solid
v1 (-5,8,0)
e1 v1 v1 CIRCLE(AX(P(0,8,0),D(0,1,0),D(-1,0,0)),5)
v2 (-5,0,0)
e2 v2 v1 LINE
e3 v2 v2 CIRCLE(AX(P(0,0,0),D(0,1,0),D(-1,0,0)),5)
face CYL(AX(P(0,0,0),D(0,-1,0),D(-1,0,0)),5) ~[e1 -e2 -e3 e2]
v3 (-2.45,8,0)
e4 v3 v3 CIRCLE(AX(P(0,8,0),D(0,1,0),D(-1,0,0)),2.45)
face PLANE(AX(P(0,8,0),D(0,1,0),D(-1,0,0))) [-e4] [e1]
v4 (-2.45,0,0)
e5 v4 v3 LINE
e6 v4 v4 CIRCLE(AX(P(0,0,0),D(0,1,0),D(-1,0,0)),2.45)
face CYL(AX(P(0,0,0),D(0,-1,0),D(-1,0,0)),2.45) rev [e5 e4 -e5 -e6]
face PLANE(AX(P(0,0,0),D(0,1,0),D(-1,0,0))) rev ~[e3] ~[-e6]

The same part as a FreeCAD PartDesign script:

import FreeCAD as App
import Part
import Sketcher
from FreeCAD import Vector
Q = App.Units.Quantity

doc = App.newDocument("Part")
body = doc.addObject("PartDesign::Body", "Body")

# Sketch on XZ plane
sketch1 = doc.addObject("Sketcher::SketchObject", "Sketch")
body.addObject(sketch1)
sketch1.AttachmentSupport = (doc.XZ_Plane, [""])
sketch1.MapMode = "FlatFace"
sketch1.addGeometry([
    Part.Circle(Vector(0, 0, 0), Vector(0, 0, 1), 5),
    Part.Circle(Vector(0, 0, 0), Vector(0, 0, 1), 2.5),
], False)
sketch1.addConstraint([
    Sketcher.Constraint("Coincident", 0, 3, -1, 1),
    Sketcher.Constraint("Coincident", 1, 3, -1, 1),
    Sketcher.Constraint("Diameter", 0, Q("10 mm")),
    Sketcher.Constraint("Diameter", 1, Q("4.9 mm")),
])
pad1 = doc.addObject("PartDesign::Pad", "Pad")
body.addObject(pad1)
pad1.Profile = sketch1
pad1.Length = 8
pad1.Reversed = True

doc.recompute()
